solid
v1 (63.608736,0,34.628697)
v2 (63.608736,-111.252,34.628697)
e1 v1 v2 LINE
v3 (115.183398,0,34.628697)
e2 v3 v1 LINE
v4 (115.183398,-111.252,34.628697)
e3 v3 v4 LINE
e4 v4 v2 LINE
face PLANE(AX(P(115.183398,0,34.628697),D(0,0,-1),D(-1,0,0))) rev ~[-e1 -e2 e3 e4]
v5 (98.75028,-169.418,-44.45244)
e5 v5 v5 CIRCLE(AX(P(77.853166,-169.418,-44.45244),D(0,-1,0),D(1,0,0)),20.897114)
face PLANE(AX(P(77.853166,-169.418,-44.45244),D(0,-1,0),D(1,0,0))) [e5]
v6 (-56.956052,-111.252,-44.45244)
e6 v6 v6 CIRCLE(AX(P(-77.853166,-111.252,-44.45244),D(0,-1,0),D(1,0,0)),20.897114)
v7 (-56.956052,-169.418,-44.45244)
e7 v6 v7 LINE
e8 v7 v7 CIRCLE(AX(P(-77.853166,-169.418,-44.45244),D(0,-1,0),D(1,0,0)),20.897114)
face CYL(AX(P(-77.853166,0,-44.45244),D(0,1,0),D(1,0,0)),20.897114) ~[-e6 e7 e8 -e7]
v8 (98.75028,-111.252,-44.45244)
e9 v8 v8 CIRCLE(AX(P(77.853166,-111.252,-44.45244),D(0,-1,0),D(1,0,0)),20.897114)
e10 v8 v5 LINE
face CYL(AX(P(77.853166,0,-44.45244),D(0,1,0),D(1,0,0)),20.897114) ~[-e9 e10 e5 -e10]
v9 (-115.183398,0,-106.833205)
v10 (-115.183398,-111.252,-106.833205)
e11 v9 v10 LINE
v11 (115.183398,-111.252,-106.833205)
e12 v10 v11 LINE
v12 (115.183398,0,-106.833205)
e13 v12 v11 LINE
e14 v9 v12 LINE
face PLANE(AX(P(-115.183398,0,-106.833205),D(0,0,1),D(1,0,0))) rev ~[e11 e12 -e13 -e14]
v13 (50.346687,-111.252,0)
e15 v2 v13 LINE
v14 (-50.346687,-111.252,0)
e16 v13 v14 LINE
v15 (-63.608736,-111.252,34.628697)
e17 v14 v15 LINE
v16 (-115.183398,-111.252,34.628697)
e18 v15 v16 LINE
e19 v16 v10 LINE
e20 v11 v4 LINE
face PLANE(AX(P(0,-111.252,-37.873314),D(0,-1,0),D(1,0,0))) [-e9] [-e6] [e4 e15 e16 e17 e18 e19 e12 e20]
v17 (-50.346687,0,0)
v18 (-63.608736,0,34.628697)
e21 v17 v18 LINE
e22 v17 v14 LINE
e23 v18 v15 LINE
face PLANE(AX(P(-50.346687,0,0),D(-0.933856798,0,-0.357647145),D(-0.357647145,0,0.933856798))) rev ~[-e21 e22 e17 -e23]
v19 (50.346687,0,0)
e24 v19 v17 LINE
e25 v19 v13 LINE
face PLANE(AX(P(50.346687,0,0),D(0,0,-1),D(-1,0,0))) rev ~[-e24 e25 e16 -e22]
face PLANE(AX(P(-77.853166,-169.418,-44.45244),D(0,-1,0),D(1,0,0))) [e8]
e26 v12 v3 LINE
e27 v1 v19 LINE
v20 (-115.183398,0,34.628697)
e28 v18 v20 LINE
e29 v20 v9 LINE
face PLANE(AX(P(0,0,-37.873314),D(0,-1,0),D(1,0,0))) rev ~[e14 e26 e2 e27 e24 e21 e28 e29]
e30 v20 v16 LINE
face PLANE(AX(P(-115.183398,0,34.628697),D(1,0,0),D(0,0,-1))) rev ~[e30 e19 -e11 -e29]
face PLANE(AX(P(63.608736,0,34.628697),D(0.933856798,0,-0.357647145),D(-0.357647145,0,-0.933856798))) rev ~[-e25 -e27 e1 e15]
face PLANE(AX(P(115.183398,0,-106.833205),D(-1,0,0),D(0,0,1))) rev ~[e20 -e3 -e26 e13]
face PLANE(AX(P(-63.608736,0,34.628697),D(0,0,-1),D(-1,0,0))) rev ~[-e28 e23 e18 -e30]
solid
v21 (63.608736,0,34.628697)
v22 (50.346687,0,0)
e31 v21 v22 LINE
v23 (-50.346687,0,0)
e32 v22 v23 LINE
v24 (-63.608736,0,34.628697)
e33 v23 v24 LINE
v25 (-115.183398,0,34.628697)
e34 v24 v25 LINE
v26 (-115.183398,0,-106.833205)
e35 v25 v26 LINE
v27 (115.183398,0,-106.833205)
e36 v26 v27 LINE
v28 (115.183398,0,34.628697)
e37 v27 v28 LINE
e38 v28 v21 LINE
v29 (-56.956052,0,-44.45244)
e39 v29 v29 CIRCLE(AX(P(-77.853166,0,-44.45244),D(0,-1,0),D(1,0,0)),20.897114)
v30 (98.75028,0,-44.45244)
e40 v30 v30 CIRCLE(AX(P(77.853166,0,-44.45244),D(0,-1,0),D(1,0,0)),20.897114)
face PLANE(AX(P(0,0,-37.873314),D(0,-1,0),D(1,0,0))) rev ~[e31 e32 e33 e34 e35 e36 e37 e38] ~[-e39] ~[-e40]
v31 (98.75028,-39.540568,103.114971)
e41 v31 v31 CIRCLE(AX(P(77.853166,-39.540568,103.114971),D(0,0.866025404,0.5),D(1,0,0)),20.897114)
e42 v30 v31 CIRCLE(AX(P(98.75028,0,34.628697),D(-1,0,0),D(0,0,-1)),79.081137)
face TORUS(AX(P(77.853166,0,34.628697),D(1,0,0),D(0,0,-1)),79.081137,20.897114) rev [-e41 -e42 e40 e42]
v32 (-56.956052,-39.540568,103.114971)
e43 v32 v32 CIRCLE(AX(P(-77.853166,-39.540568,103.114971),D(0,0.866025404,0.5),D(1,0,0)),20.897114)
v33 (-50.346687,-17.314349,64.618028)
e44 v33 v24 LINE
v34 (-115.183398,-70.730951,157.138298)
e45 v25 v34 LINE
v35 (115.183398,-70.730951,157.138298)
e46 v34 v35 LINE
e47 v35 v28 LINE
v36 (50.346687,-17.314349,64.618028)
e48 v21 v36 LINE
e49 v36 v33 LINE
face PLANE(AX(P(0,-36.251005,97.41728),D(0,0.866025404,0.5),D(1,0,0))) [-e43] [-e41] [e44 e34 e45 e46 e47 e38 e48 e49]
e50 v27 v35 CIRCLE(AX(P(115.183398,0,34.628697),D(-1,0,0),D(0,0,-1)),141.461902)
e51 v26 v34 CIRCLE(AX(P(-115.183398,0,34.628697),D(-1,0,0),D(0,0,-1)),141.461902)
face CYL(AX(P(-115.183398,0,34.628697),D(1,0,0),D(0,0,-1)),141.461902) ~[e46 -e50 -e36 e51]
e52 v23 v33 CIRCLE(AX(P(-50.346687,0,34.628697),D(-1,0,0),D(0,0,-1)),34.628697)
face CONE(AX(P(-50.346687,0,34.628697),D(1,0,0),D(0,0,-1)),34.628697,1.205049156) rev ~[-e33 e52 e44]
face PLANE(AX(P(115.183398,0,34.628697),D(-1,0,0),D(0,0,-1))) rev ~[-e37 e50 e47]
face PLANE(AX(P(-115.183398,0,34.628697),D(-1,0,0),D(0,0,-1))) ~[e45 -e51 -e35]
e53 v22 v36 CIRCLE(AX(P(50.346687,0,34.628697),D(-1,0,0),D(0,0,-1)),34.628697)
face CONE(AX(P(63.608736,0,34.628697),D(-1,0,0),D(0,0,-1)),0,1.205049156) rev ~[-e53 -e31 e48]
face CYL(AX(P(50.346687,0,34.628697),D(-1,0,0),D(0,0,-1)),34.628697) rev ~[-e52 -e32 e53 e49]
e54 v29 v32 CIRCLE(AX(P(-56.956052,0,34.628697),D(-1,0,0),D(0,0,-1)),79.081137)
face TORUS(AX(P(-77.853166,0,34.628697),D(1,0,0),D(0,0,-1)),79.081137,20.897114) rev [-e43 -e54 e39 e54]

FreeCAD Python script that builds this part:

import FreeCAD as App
import Part
import Sketcher
from FreeCAD import Vector
Q = App.Units.Quantity

doc = App.newDocument("Part")
params = doc.addObject("Spreadsheet::Sheet", "Params")
for row, (alias, value) in enumerate([
    ("pad1_length", "4.38 in"),
    ("pad2_length", "6.67 in"),
    ("revolution_angle", "150 deg"),
], start=1):
    params.set(f"A{row}", alias)
    params.set(f"B{row}", "=" + value)
    params.setAlias(f"B{row}", alias)

body = doc.addObject("PartDesign::Body", "Body")

# Sketch on XZ plane
sketch1 = body.newObject("Sketcher::SketchObject", "Sketch")
sketch1.AttachmentSupport = (doc.getObject("XZ_Plane"), [""])
sketch1.MapMode = "FlatFace"
sketch1.addGeometry(Part.LineSegment(Vector(50, 0, 0), Vector(-50, 0, 0)), False)
sketch1.addGeometry(Part.LineSegment(Vector(-50, 0, 0), Vector(-64, 35, 0)), False)
sketch1.addGeometry(Part.LineSegment(Vector(-64, 35, 0), Vector(-115, 35, 0)), False)
sketch1.addGeometry(Part.LineSegment(Vector(-115, 35, 0), Vector(-115, -107, 0)), False)
sketch1.addGeometry(Part.LineSegment(Vector(-115, -107, 0), Vector(115, -107, 0)), False)
sketch1.addGeometry(Part.LineSegment(Vector(115, -107, 0), Vector(115, 35, 0)), False)
sketch1.addGeometry(Part.LineSegment(Vector(115, 35, 0), Vector(64, 35, 0)), False)
sketch1.addGeometry(Part.LineSegment(Vector(64, 35, 0), Vector(50, 0, 0)), False)
sketch1.addGeometry(Part.Circle(Vector(-78, -44, 0), Vector(0, 0, 1), 21), False)
sketch1.addGeometry(Part.Circle(Vector(78, -44, 0), Vector(0, 0, 1), 21), False)
sketch1.addConstraint(Sketcher.Constraint("Coincident", 0, 2, 1, 1))
sketch1.addConstraint(Sketcher.Constraint("Coincident", 1, 2, 2, 1))
sketch1.addConstraint(Sketcher.Constraint("Coincident", 2, 2, 3, 1))
sketch1.addConstraint(Sketcher.Constraint("Coincident", 3, 2, 4, 1))
sketch1.addConstraint(Sketcher.Constraint("Coincident", 4, 2, 5, 1))
sketch1.addConstraint(Sketcher.Constraint("Coincident", 5, 2, 6, 1))
sketch1.addConstraint(Sketcher.Constraint("Coincident", 6, 2, 7, 1))
sketch1.addConstraint(Sketcher.Constraint("Coincident", 7, 2, 0, 1))
sketch1.addConstraint(Sketcher.Constraint("Horizontal", 0))
sketch1.addConstraint(Sketcher.Constraint("Horizontal", 2))
sketch1.addConstraint(Sketcher.Constraint("Vertical", 3))
sketch1.addConstraint(Sketcher.Constraint("Horizontal", 4))
sketch1.addConstraint(Sketcher.Constraint("Vertical", 5))
sketch1.addConstraint(Sketcher.Constraint("Horizontal", 6))
sketch1.addConstraint(Sketcher.Constraint("Equal", 8, 9))
sketch1.addConstraint(Sketcher.Constraint("Symmetric", 0, 2, 7, 2, -1, 1))
sketch1.addConstraint(Sketcher.Constraint("Symmetric", 8, 3, 9, 3, -2))
sketch1.addConstraint(Sketcher.Constraint("Symmetric", 2, 2, 5, 2, -2))
sketch1.addConstraint(Sketcher.Constraint("Equal", 2, 6))
sketch1.addConstraint(Sketcher.Constraint("Diameter", 8, Q("41.794228 mm")))
sketch1.addConstraint(Sketcher.Constraint("DistanceY", 3, 2, 3, 1, Q("141.461902 mm")))
sketch1.addConstraint(Sketcher.Constraint("DistanceX", 2, 2, 2, 1, Q("51.574662 mm")))
sketch1.addConstraint(Sketcher.Constraint("DistanceX", 1, 2, 9, 3, Q("141.461902 mm")))
sketch1.addConstraint(Sketcher.Constraint("Distance", 1, Q("37.081378 mm")))
sketch1.addConstraint(Sketcher.Constraint("DistanceX", 0, 2, 0, 1, Q("100.693374 mm")))
sketch1.addConstraint(Sketcher.Constraint("DistanceX", 4, 1, 4, 2, Q("230.366796 mm")))
sketch1.addConstraint(Sketcher.Constraint("DistanceY", 8, 3, -1, 1, Q("44.45244 mm")))
pad1 = body.newObject("PartDesign::Pad", "Pad")
pad1.Profile = sketch1
pad1.setExpression("Length", "Params.pad1_length")

# Sketch on XZ plane
sketch2 = body.newObject("Sketcher::SketchObject", "Sketch001")
sketch2.AttachmentSupport = (doc.getObject("XZ_Plane"), [""])
sketch2.MapMode = "FlatFace"
sketch2.addGeometry(Part.Circle(Vector(78, -44, 0), Vector(0, 0, 1), 21), False)
sketch2.addGeometry(Part.Circle(Vector(-78, -44, 0), Vector(0, 0, 1), 21), False)
sketch2.addConstraint(Sketcher.Constraint("Equal", 0, 1))
sketch2.addConstraint(Sketcher.Constraint("Symmetric", 0, 3, 1, 3, -2))
sketch2.addConstraint(Sketcher.Constraint("Diameter", 0, Q("41.794228 mm")))
sketch2.addConstraint(Sketcher.Constraint("DistanceY", 0, 3, -1, 1, Q("44.45244 mm")))
sketch2.addConstraint(Sketcher.Constraint("DistanceX", 1, 3, 0, 3, Q("155.706332 mm")))
pad2 = body.newObject("PartDesign::Pad", "Pad001")
pad2.Profile = sketch2
pad2.setExpression("Length", "Params.pad2_length")
body2 = doc.addObject("PartDesign::Body", "Body001")

# Sketch on XZ plane
sketch3 = body2.newObject("Sketcher::SketchObject", "Sketch002")
sketch3.AttachmentSupport = (doc.getObject("XZ_Plane001"), [""])
sketch3.MapMode = "FlatFace"
sketch3.addGeometry(Part.LineSegment(Vector(50, 0, 0), Vector(-50, 0, 0)), False)
sketch3.addGeometry(Part.LineSegment(Vector(-50, 0, 0), Vector(-64, 35, 0)), False)
sketch3.addGeometry(Part.LineSegment(Vector(-64, 35, 0), Vector(-115, 35, 0)), False)
sketch3.addGeometry(Part.LineSegment(Vector(-115, 35, 0), Vector(-115, -107, 0)), False)
sketch3.addGeometry(Part.LineSegment(Vector(-115, -107, 0), Vector(115, -107, 0)), False)
sketch3.addGeometry(Part.LineSegment(Vector(115, -107, 0), Vector(115, 35, 0)), False)
sketch3.addGeometry(Part.LineSegment(Vector(115, 35, 0), Vector(64, 35, 0)), False)
sketch3.addGeometry(Part.LineSegment(Vector(64, 35, 0), Vector(50, 0, 0)), False)
sketch3.addGeometry(Part.Circle(Vector(-78, -44, 0), Vector(0, 0, 1), 21), False)
sketch3.addGeometry(Part.Circle(Vector(78, -44, 0), Vector(0, 0, 1), 21), False)
sketch3.addGeometry(Part.LineSegment(Vector(-115, 35, 0), Vector(115, 35, 0)), True)  # axis
sketch3.addConstraint(Sketcher.Constraint("Coincident", 0, 2, 1, 1))
sketch3.addConstraint(Sketcher.Constraint("Coincident", 1, 2, 2, 1))
sketch3.addConstraint(Sketcher.Constraint("Coincident", 2, 2, 3, 1))
sketch3.addConstraint(Sketcher.Constraint("Coincident", 3, 2, 4, 1))
sketch3.addConstraint(Sketcher.Constraint("Coincident", 4, 2, 5, 1))
sketch3.addConstraint(Sketcher.Constraint("Coincident", 5, 2, 6, 1))
sketch3.addConstraint(Sketcher.Constraint("Coincident", 6, 2, 7, 1))
sketch3.addConstraint(Sketcher.Constraint("Coincident", 7, 2, 0, 1))
sketch3.addConstraint(Sketcher.Constraint("Horizontal", 0))
sketch3.addConstraint(Sketcher.Constraint("Horizontal", 2))
sketch3.addConstraint(Sketcher.Constraint("Vertical", 3))
sketch3.addConstraint(Sketcher.Constraint("Horizontal", 4))
sketch3.addConstraint(Sketcher.Constraint("Vertical", 5))
sketch3.addConstraint(Sketcher.Constraint("Horizontal", 6))
sketch3.addConstraint(Sketcher.Constraint("Horizontal", 10))
sketch3.addConstraint(Sketcher.Constraint("Coincident", 10, 1, 2, 2))
sketch3.addConstraint(Sketcher.Constraint("Coincident", 10, 2, 5, 2))
sketch3.addConstraint(Sketcher.Constraint("Equal", 8, 9))
sketch3.addConstraint(Sketcher.Constraint("Symmetric", 0, 2, 7, 2, -1, 1))
sketch3.addConstraint(Sketcher.Constraint("Symmetric", 8, 3, 9, 3, -2))
sketch3.addConstraint(Sketcher.Constraint("Equal", 2, 6))
sketch3.addConstraint(Sketcher.Constraint("Equal", 1, 7))
sketch3.addConstraint(Sketcher.Constraint("Diameter", 8, Q("41.794228 mm")))
sketch3.addConstraint(Sketcher.Constraint("DistanceY", 3, 2, 3, 1, Q("141.461902 mm")))
sketch3.addConstraint(Sketcher.Constraint("DistanceX", 2, 2, 2, 1, Q("51.574662 mm")))
sketch3.addConstraint(Sketcher.Constraint("DistanceX", 1, 2, 9, 3, Q("141.461902 mm")))
sketch3.addConstraint(Sketcher.Constraint("Distance", 1, Q("37.081378 mm")))
sketch3.addConstraint(Sketcher.Constraint("DistanceX", 0, 2, 0, 1, Q("100.693374 mm")))
sketch3.addConstraint(Sketcher.Constraint("DistanceX", 4, 1, 4, 2, Q("230.366796 mm")))
sketch3.addConstraint(Sketcher.Constraint("DistanceY", 8, 3, -1, 1, Q("44.45244 mm")))
revolution = body2.newObject("PartDesign::Revolution", "Revolution")
revolution.Profile = sketch3
revolution.ReferenceAxis = (sketch3, ["Axis0"])
revolution.setExpression("Angle", "Params.revolution_angle")
revolution.Reversed = True

doc.recompute()
